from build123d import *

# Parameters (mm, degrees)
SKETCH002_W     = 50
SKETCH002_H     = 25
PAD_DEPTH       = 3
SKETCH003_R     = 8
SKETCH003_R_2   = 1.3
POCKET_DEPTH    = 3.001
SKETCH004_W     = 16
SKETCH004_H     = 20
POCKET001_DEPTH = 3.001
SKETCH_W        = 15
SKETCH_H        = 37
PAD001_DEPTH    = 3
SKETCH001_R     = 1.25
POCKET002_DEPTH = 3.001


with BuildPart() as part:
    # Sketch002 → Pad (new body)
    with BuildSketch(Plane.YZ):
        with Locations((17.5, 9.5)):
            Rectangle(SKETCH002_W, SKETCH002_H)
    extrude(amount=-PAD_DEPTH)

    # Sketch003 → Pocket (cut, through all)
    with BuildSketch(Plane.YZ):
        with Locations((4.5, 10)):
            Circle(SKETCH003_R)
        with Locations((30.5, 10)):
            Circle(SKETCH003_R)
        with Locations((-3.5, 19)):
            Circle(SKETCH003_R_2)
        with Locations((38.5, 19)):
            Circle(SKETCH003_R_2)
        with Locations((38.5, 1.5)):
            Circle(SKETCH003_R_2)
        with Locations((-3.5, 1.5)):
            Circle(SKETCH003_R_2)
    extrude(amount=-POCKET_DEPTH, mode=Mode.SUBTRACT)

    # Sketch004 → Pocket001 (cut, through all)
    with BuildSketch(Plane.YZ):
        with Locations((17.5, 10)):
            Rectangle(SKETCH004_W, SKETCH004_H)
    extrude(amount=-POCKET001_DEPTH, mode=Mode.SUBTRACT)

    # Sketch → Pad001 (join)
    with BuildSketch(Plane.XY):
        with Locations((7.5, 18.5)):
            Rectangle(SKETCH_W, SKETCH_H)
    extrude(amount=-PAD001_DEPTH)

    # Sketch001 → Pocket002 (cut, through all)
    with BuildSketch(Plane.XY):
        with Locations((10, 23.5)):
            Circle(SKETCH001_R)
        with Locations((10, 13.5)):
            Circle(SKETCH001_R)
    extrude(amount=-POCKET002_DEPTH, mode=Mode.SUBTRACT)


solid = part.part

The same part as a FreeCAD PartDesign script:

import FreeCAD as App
import Part
import Sketcher
from FreeCAD import Vector


def add_polygon(sketch, points):
    """Adds a closed chain of lines whose ends are joined by coincident constraints."""
    first, n = sketch.GeometryCount, len(points)
    for a, b in zip(points, points[1:] + points[:1]):
        sketch.addGeometry(Part.LineSegment(App.Vector(*a, 0), App.Vector(*b, 0)), False)
    for i in range(n):
        sketch.addConstraint(Sketcher.Constraint("Coincident", first + i, 2, first + (i + 1) % n, 1))

doc = App.newDocument("Part")
params = doc.addObject("Spreadsheet::Sheet", "Params")
for row, (alias, value) in enumerate([
    ("sketch1_width", "50 mm"),
    ("sketch1_height", "25 mm"),
    ("pad1_length", "3 mm"),
    ("sketch2_diameter", "16 mm"),
    ("sketch2_diameter2", "2.6 mm"),
    ("sketch3_width", "16 mm"),
    ("sketch3_height", "20 mm"),
    ("sketch4_width", "15 mm"),
    ("sketch4_height", "37 mm"),
    ("pad2_length", "3 mm"),
    ("sketch5_diameter", "2.5 mm"),
], start=1):
    params.set(f"A{row}", alias)
    params.set(f"B{row}", "=" + value)
    params.setAlias(f"B{row}", alias)

body = doc.addObject("PartDesign::Body", "Body")

# Sketch on YZ plane
sketch1 = doc.addObject("Sketcher::SketchObject", "Sketch")
body.addObject(sketch1)
sketch1.AttachmentSupport = (doc.YZ_Plane, [""])
sketch1.MapMode = "FlatFace"
add_polygon(sketch1, [(-8, 22), (-8, -3), (42, -3), (42, 22)])  # lines 0-3
sketch1.addConstraint(Sketcher.Constraint("Vertical", 0))
sketch1.addConstraint(Sketcher.Constraint("Horizontal", 1))
sketch1.addConstraint(Sketcher.Constraint("Vertical", 2))
sketch1.addConstraint(Sketcher.Constraint("Horizontal", 3))
sketch1.addConstraint(Sketcher.Constraint("DistanceX", 1, 1, 1, 2, 50.0))
sketch1.addConstraint(Sketcher.Constraint("DistanceY", 0, 2, 0, 1, 25.0))
sketch1.addConstraint(Sketcher.Constraint("DistanceY", 0, 2, -1, 1, 3.0))
sketch1.addConstraint(Sketcher.Constraint("DistanceX", 0, 2, -1, 1, 7.5))
sketch1.setExpression("Constraints[8]", "Params.sketch1_width")
sketch1.setExpression("Constraints[9]", "Params.sketch1_height")
pad1 = doc.addObject("PartDesign::Pad", "Pad")
body.addObject(pad1)
pad1.Profile = sketch1
pad1.setExpression("Length", "Params.pad1_length")
pad1.Reversed = True

# Sketch on YZ plane
sketch2 = doc.addObject("Sketcher::SketchObject", "Sketch001")
body.addObject(sketch2)
sketch2.AttachmentSupport = (doc.YZ_Plane, [""])
sketch2.MapMode = "FlatFace"
sketch2.addGeometry(Part.Circle(Vector(4.5, 10, 0), Vector(0, 0, 1), 8), False)
sketch2.addGeometry(Part.Circle(Vector(30.5, 10, 0), Vector(0, 0, 1), 8), False)
sketch2.addGeometry(Part.Circle(Vector(-3.5, 19, 0), Vector(0, 0, 1), 1.3), False)
sketch2.addGeometry(Part.Circle(Vector(38.5, 19, 0), Vector(0, 0, 1), 1.3), False)
sketch2.addGeometry(Part.Circle(Vector(38.5, 1.5, 0), Vector(0, 0, 1), 1.3), False)
sketch2.addGeometry(Part.Circle(Vector(-3.5, 1.5, 0), Vector(0, 0, 1), 1.3), False)
sketch2.addConstraint(Sketcher.Constraint("Equal", 0, 1))
sketch2.addConstraint(Sketcher.Constraint("Equal", 2, 3))
sketch2.addConstraint(Sketcher.Constraint("Equal", 3, 4))
sketch2.addConstraint(Sketcher.Constraint("Equal", 4, 5))
sketch2.addConstraint(Sketcher.Constraint("Horizontal", 0, 3, 1, 3))
sketch2.addConstraint(Sketcher.Constraint("Horizontal", 2, 3, 3, 3))
sketch2.addConstraint(Sketcher.Constraint("Horizontal", 4, 3, 5, 3))
sketch2.addConstraint(Sketcher.Constraint("Vertical", 3, 3, 4, 3))
sketch2.addConstraint(Sketcher.Constraint("Vertical", 2, 3, 5, 3))
sketch2.addConstraint(Sketcher.Constraint("Diameter", 0, 16.0))
sketch2.addConstraint(Sketcher.Constraint("Diameter", 2, 2.6))
sketch2.addConstraint(Sketcher.Constraint("DistanceY", -1, 1, 0, 3, 10.0))
sketch2.addConstraint(Sketcher.Constraint("DistanceY", -1, 1, 2, 3, 19.0))
sketch2.addConstraint(Sketcher.Constraint("DistanceX", 0, 3, 1, 3, 26.0))
sketch2.addConstraint(Sketcher.Constraint("DistanceX", 2, 3, 0, 3, 8.0))
sketch2.addConstraint(Sketcher.Constraint("DistanceX", 1, 3, 3, 3, 8.0))
sketch2.addConstraint(Sketcher.Constraint("DistanceX", -1, 1, 0, 3, 4.5))
sketch2.addConstraint(Sketcher.Constraint("DistanceY", -1, 1, 4, 3, 1.5))
sketch2.setExpression("Constraints[9]", "Params.sketch2_diameter")
sketch2.setExpression("Constraints[10]", "Params.sketch2_diameter2")
pocket1 = doc.addObject("PartDesign::Pocket", "Pocket")
body.addObject(pocket1)
pocket1.Profile = sketch2
pocket1.Type = "ThroughAll"

# Sketch on YZ plane
sketch3 = doc.addObject("Sketcher::SketchObject", "Sketch002")
body.addObject(sketch3)
sketch3.AttachmentSupport = (doc.YZ_Plane, [""])
sketch3.MapMode = "FlatFace"
add_polygon(sketch3, [(10, 20), (10, 0), (26, 0), (26, 20)])  # lines 0-3
sketch3.addConstraint(Sketcher.Constraint("Vertical", 0))
sketch3.addConstraint(Sketcher.Constraint("Horizontal", 1))
sketch3.addConstraint(Sketcher.Constraint("Vertical", 2))
sketch3.addConstraint(Sketcher.Constraint("Horizontal", 3))
sketch3.addConstraint(Sketcher.Constraint("PointOnObject", 0, 2, -1))
sketch3.addConstraint(Sketcher.Constraint("DistanceX", 1, 1, 1, 2, 16.0))
sketch3.addConstraint(Sketcher.Constraint("DistanceY", 0, 2, 0, 1, 20.0))
sketch3.addConstraint(Sketcher.Constraint("DistanceX", -1, 1, 0, 2, 9.5))
sketch3.setExpression("Constraints[9]", "Params.sketch3_width")
sketch3.setExpression("Constraints[10]", "Params.sketch3_height")
pocket2 = doc.addObject("PartDesign::Pocket", "Pocket001")
body.addObject(pocket2)
pocket2.Profile = sketch3
pocket2.Type = "ThroughAll"

# Sketch on XY plane
sketch4 = doc.addObject("Sketcher::SketchObject", "Sketch003")
body.addObject(sketch4)
sketch4.AttachmentSupport = (doc.XY_Plane, [""])
sketch4.MapMode = "FlatFace"
add_polygon(sketch4, [(0, 37), (0, 0), (15, 0), (15, 37)])  # lines 0-3
sketch4.addConstraint(Sketcher.Constraint("Vertical", 0))
sketch4.addConstraint(Sketcher.Constraint("Horizontal", 1))
sketch4.addConstraint(Sketcher.Constraint("Vertical", 2))
sketch4.addConstraint(Sketcher.Constraint("Horizontal", 3))
sketch4.addConstraint(Sketcher.Constraint("Coincident", 0, 2, -1, 1))
sketch4.addConstraint(Sketcher.Constraint("DistanceX", 1, 1, 1, 2, 15.0))
sketch4.addConstraint(Sketcher.Constraint("DistanceY", 0, 2, 0, 1, 37.0))
sketch4.setExpression("Constraints[9]", "Params.sketch4_width")
sketch4.setExpression("Constraints[10]", "Params.sketch4_height")
pad2 = doc.addObject("PartDesign::Pad", "Pad001")
body.addObject(pad2)
pad2.Profile = sketch4
pad2.setExpression("Length", "Params.pad2_length")
pad2.Reversed = True

# Sketch on XY plane
sketch5 = doc.addObject("Sketcher::SketchObject", "Sketch004")
body.addObject(sketch5)
sketch5.AttachmentSupport = (doc.XY_Plane, [""])
sketch5.MapMode = "FlatFace"
sketch5.addGeometry(Part.Circle(Vector(10, 23.5, 0), Vector(0, 0, 1), 1.2), False)
sketch5.addGeometry(Part.Circle(Vector(10, 13.5, 0), Vector(0, 0, 1), 1.2), False)
sketch5.addConstraint(Sketcher.Constraint("Equal", 0, 1))
sketch5.addConstraint(Sketcher.Constraint("Vertical", 0, 3, 1, 3))
sketch5.addConstraint(Sketcher.Constraint("Diameter", 0, 2.5))
sketch5.addConstraint(Sketcher.Constraint("DistanceX", -1, 1, 0, 3, 10.0))
sketch5.addConstraint(Sketcher.Constraint("DistanceY", 1, 3, 0, 3, 10.0))
sketch5.addConstraint(Sketcher.Constraint("DistanceY", -1, 1, 0, 3, 23.5))
sketch5.setExpression("Constraints[2]", "Params.sketch5_diameter")
pocket3 = doc.addObject("PartDesign::Pocket", "Pocket002")
body.addObject(pocket3)
pocket3.Profile = sketch5
pocket3.Type = "ThroughAll"

doc.recompute()
